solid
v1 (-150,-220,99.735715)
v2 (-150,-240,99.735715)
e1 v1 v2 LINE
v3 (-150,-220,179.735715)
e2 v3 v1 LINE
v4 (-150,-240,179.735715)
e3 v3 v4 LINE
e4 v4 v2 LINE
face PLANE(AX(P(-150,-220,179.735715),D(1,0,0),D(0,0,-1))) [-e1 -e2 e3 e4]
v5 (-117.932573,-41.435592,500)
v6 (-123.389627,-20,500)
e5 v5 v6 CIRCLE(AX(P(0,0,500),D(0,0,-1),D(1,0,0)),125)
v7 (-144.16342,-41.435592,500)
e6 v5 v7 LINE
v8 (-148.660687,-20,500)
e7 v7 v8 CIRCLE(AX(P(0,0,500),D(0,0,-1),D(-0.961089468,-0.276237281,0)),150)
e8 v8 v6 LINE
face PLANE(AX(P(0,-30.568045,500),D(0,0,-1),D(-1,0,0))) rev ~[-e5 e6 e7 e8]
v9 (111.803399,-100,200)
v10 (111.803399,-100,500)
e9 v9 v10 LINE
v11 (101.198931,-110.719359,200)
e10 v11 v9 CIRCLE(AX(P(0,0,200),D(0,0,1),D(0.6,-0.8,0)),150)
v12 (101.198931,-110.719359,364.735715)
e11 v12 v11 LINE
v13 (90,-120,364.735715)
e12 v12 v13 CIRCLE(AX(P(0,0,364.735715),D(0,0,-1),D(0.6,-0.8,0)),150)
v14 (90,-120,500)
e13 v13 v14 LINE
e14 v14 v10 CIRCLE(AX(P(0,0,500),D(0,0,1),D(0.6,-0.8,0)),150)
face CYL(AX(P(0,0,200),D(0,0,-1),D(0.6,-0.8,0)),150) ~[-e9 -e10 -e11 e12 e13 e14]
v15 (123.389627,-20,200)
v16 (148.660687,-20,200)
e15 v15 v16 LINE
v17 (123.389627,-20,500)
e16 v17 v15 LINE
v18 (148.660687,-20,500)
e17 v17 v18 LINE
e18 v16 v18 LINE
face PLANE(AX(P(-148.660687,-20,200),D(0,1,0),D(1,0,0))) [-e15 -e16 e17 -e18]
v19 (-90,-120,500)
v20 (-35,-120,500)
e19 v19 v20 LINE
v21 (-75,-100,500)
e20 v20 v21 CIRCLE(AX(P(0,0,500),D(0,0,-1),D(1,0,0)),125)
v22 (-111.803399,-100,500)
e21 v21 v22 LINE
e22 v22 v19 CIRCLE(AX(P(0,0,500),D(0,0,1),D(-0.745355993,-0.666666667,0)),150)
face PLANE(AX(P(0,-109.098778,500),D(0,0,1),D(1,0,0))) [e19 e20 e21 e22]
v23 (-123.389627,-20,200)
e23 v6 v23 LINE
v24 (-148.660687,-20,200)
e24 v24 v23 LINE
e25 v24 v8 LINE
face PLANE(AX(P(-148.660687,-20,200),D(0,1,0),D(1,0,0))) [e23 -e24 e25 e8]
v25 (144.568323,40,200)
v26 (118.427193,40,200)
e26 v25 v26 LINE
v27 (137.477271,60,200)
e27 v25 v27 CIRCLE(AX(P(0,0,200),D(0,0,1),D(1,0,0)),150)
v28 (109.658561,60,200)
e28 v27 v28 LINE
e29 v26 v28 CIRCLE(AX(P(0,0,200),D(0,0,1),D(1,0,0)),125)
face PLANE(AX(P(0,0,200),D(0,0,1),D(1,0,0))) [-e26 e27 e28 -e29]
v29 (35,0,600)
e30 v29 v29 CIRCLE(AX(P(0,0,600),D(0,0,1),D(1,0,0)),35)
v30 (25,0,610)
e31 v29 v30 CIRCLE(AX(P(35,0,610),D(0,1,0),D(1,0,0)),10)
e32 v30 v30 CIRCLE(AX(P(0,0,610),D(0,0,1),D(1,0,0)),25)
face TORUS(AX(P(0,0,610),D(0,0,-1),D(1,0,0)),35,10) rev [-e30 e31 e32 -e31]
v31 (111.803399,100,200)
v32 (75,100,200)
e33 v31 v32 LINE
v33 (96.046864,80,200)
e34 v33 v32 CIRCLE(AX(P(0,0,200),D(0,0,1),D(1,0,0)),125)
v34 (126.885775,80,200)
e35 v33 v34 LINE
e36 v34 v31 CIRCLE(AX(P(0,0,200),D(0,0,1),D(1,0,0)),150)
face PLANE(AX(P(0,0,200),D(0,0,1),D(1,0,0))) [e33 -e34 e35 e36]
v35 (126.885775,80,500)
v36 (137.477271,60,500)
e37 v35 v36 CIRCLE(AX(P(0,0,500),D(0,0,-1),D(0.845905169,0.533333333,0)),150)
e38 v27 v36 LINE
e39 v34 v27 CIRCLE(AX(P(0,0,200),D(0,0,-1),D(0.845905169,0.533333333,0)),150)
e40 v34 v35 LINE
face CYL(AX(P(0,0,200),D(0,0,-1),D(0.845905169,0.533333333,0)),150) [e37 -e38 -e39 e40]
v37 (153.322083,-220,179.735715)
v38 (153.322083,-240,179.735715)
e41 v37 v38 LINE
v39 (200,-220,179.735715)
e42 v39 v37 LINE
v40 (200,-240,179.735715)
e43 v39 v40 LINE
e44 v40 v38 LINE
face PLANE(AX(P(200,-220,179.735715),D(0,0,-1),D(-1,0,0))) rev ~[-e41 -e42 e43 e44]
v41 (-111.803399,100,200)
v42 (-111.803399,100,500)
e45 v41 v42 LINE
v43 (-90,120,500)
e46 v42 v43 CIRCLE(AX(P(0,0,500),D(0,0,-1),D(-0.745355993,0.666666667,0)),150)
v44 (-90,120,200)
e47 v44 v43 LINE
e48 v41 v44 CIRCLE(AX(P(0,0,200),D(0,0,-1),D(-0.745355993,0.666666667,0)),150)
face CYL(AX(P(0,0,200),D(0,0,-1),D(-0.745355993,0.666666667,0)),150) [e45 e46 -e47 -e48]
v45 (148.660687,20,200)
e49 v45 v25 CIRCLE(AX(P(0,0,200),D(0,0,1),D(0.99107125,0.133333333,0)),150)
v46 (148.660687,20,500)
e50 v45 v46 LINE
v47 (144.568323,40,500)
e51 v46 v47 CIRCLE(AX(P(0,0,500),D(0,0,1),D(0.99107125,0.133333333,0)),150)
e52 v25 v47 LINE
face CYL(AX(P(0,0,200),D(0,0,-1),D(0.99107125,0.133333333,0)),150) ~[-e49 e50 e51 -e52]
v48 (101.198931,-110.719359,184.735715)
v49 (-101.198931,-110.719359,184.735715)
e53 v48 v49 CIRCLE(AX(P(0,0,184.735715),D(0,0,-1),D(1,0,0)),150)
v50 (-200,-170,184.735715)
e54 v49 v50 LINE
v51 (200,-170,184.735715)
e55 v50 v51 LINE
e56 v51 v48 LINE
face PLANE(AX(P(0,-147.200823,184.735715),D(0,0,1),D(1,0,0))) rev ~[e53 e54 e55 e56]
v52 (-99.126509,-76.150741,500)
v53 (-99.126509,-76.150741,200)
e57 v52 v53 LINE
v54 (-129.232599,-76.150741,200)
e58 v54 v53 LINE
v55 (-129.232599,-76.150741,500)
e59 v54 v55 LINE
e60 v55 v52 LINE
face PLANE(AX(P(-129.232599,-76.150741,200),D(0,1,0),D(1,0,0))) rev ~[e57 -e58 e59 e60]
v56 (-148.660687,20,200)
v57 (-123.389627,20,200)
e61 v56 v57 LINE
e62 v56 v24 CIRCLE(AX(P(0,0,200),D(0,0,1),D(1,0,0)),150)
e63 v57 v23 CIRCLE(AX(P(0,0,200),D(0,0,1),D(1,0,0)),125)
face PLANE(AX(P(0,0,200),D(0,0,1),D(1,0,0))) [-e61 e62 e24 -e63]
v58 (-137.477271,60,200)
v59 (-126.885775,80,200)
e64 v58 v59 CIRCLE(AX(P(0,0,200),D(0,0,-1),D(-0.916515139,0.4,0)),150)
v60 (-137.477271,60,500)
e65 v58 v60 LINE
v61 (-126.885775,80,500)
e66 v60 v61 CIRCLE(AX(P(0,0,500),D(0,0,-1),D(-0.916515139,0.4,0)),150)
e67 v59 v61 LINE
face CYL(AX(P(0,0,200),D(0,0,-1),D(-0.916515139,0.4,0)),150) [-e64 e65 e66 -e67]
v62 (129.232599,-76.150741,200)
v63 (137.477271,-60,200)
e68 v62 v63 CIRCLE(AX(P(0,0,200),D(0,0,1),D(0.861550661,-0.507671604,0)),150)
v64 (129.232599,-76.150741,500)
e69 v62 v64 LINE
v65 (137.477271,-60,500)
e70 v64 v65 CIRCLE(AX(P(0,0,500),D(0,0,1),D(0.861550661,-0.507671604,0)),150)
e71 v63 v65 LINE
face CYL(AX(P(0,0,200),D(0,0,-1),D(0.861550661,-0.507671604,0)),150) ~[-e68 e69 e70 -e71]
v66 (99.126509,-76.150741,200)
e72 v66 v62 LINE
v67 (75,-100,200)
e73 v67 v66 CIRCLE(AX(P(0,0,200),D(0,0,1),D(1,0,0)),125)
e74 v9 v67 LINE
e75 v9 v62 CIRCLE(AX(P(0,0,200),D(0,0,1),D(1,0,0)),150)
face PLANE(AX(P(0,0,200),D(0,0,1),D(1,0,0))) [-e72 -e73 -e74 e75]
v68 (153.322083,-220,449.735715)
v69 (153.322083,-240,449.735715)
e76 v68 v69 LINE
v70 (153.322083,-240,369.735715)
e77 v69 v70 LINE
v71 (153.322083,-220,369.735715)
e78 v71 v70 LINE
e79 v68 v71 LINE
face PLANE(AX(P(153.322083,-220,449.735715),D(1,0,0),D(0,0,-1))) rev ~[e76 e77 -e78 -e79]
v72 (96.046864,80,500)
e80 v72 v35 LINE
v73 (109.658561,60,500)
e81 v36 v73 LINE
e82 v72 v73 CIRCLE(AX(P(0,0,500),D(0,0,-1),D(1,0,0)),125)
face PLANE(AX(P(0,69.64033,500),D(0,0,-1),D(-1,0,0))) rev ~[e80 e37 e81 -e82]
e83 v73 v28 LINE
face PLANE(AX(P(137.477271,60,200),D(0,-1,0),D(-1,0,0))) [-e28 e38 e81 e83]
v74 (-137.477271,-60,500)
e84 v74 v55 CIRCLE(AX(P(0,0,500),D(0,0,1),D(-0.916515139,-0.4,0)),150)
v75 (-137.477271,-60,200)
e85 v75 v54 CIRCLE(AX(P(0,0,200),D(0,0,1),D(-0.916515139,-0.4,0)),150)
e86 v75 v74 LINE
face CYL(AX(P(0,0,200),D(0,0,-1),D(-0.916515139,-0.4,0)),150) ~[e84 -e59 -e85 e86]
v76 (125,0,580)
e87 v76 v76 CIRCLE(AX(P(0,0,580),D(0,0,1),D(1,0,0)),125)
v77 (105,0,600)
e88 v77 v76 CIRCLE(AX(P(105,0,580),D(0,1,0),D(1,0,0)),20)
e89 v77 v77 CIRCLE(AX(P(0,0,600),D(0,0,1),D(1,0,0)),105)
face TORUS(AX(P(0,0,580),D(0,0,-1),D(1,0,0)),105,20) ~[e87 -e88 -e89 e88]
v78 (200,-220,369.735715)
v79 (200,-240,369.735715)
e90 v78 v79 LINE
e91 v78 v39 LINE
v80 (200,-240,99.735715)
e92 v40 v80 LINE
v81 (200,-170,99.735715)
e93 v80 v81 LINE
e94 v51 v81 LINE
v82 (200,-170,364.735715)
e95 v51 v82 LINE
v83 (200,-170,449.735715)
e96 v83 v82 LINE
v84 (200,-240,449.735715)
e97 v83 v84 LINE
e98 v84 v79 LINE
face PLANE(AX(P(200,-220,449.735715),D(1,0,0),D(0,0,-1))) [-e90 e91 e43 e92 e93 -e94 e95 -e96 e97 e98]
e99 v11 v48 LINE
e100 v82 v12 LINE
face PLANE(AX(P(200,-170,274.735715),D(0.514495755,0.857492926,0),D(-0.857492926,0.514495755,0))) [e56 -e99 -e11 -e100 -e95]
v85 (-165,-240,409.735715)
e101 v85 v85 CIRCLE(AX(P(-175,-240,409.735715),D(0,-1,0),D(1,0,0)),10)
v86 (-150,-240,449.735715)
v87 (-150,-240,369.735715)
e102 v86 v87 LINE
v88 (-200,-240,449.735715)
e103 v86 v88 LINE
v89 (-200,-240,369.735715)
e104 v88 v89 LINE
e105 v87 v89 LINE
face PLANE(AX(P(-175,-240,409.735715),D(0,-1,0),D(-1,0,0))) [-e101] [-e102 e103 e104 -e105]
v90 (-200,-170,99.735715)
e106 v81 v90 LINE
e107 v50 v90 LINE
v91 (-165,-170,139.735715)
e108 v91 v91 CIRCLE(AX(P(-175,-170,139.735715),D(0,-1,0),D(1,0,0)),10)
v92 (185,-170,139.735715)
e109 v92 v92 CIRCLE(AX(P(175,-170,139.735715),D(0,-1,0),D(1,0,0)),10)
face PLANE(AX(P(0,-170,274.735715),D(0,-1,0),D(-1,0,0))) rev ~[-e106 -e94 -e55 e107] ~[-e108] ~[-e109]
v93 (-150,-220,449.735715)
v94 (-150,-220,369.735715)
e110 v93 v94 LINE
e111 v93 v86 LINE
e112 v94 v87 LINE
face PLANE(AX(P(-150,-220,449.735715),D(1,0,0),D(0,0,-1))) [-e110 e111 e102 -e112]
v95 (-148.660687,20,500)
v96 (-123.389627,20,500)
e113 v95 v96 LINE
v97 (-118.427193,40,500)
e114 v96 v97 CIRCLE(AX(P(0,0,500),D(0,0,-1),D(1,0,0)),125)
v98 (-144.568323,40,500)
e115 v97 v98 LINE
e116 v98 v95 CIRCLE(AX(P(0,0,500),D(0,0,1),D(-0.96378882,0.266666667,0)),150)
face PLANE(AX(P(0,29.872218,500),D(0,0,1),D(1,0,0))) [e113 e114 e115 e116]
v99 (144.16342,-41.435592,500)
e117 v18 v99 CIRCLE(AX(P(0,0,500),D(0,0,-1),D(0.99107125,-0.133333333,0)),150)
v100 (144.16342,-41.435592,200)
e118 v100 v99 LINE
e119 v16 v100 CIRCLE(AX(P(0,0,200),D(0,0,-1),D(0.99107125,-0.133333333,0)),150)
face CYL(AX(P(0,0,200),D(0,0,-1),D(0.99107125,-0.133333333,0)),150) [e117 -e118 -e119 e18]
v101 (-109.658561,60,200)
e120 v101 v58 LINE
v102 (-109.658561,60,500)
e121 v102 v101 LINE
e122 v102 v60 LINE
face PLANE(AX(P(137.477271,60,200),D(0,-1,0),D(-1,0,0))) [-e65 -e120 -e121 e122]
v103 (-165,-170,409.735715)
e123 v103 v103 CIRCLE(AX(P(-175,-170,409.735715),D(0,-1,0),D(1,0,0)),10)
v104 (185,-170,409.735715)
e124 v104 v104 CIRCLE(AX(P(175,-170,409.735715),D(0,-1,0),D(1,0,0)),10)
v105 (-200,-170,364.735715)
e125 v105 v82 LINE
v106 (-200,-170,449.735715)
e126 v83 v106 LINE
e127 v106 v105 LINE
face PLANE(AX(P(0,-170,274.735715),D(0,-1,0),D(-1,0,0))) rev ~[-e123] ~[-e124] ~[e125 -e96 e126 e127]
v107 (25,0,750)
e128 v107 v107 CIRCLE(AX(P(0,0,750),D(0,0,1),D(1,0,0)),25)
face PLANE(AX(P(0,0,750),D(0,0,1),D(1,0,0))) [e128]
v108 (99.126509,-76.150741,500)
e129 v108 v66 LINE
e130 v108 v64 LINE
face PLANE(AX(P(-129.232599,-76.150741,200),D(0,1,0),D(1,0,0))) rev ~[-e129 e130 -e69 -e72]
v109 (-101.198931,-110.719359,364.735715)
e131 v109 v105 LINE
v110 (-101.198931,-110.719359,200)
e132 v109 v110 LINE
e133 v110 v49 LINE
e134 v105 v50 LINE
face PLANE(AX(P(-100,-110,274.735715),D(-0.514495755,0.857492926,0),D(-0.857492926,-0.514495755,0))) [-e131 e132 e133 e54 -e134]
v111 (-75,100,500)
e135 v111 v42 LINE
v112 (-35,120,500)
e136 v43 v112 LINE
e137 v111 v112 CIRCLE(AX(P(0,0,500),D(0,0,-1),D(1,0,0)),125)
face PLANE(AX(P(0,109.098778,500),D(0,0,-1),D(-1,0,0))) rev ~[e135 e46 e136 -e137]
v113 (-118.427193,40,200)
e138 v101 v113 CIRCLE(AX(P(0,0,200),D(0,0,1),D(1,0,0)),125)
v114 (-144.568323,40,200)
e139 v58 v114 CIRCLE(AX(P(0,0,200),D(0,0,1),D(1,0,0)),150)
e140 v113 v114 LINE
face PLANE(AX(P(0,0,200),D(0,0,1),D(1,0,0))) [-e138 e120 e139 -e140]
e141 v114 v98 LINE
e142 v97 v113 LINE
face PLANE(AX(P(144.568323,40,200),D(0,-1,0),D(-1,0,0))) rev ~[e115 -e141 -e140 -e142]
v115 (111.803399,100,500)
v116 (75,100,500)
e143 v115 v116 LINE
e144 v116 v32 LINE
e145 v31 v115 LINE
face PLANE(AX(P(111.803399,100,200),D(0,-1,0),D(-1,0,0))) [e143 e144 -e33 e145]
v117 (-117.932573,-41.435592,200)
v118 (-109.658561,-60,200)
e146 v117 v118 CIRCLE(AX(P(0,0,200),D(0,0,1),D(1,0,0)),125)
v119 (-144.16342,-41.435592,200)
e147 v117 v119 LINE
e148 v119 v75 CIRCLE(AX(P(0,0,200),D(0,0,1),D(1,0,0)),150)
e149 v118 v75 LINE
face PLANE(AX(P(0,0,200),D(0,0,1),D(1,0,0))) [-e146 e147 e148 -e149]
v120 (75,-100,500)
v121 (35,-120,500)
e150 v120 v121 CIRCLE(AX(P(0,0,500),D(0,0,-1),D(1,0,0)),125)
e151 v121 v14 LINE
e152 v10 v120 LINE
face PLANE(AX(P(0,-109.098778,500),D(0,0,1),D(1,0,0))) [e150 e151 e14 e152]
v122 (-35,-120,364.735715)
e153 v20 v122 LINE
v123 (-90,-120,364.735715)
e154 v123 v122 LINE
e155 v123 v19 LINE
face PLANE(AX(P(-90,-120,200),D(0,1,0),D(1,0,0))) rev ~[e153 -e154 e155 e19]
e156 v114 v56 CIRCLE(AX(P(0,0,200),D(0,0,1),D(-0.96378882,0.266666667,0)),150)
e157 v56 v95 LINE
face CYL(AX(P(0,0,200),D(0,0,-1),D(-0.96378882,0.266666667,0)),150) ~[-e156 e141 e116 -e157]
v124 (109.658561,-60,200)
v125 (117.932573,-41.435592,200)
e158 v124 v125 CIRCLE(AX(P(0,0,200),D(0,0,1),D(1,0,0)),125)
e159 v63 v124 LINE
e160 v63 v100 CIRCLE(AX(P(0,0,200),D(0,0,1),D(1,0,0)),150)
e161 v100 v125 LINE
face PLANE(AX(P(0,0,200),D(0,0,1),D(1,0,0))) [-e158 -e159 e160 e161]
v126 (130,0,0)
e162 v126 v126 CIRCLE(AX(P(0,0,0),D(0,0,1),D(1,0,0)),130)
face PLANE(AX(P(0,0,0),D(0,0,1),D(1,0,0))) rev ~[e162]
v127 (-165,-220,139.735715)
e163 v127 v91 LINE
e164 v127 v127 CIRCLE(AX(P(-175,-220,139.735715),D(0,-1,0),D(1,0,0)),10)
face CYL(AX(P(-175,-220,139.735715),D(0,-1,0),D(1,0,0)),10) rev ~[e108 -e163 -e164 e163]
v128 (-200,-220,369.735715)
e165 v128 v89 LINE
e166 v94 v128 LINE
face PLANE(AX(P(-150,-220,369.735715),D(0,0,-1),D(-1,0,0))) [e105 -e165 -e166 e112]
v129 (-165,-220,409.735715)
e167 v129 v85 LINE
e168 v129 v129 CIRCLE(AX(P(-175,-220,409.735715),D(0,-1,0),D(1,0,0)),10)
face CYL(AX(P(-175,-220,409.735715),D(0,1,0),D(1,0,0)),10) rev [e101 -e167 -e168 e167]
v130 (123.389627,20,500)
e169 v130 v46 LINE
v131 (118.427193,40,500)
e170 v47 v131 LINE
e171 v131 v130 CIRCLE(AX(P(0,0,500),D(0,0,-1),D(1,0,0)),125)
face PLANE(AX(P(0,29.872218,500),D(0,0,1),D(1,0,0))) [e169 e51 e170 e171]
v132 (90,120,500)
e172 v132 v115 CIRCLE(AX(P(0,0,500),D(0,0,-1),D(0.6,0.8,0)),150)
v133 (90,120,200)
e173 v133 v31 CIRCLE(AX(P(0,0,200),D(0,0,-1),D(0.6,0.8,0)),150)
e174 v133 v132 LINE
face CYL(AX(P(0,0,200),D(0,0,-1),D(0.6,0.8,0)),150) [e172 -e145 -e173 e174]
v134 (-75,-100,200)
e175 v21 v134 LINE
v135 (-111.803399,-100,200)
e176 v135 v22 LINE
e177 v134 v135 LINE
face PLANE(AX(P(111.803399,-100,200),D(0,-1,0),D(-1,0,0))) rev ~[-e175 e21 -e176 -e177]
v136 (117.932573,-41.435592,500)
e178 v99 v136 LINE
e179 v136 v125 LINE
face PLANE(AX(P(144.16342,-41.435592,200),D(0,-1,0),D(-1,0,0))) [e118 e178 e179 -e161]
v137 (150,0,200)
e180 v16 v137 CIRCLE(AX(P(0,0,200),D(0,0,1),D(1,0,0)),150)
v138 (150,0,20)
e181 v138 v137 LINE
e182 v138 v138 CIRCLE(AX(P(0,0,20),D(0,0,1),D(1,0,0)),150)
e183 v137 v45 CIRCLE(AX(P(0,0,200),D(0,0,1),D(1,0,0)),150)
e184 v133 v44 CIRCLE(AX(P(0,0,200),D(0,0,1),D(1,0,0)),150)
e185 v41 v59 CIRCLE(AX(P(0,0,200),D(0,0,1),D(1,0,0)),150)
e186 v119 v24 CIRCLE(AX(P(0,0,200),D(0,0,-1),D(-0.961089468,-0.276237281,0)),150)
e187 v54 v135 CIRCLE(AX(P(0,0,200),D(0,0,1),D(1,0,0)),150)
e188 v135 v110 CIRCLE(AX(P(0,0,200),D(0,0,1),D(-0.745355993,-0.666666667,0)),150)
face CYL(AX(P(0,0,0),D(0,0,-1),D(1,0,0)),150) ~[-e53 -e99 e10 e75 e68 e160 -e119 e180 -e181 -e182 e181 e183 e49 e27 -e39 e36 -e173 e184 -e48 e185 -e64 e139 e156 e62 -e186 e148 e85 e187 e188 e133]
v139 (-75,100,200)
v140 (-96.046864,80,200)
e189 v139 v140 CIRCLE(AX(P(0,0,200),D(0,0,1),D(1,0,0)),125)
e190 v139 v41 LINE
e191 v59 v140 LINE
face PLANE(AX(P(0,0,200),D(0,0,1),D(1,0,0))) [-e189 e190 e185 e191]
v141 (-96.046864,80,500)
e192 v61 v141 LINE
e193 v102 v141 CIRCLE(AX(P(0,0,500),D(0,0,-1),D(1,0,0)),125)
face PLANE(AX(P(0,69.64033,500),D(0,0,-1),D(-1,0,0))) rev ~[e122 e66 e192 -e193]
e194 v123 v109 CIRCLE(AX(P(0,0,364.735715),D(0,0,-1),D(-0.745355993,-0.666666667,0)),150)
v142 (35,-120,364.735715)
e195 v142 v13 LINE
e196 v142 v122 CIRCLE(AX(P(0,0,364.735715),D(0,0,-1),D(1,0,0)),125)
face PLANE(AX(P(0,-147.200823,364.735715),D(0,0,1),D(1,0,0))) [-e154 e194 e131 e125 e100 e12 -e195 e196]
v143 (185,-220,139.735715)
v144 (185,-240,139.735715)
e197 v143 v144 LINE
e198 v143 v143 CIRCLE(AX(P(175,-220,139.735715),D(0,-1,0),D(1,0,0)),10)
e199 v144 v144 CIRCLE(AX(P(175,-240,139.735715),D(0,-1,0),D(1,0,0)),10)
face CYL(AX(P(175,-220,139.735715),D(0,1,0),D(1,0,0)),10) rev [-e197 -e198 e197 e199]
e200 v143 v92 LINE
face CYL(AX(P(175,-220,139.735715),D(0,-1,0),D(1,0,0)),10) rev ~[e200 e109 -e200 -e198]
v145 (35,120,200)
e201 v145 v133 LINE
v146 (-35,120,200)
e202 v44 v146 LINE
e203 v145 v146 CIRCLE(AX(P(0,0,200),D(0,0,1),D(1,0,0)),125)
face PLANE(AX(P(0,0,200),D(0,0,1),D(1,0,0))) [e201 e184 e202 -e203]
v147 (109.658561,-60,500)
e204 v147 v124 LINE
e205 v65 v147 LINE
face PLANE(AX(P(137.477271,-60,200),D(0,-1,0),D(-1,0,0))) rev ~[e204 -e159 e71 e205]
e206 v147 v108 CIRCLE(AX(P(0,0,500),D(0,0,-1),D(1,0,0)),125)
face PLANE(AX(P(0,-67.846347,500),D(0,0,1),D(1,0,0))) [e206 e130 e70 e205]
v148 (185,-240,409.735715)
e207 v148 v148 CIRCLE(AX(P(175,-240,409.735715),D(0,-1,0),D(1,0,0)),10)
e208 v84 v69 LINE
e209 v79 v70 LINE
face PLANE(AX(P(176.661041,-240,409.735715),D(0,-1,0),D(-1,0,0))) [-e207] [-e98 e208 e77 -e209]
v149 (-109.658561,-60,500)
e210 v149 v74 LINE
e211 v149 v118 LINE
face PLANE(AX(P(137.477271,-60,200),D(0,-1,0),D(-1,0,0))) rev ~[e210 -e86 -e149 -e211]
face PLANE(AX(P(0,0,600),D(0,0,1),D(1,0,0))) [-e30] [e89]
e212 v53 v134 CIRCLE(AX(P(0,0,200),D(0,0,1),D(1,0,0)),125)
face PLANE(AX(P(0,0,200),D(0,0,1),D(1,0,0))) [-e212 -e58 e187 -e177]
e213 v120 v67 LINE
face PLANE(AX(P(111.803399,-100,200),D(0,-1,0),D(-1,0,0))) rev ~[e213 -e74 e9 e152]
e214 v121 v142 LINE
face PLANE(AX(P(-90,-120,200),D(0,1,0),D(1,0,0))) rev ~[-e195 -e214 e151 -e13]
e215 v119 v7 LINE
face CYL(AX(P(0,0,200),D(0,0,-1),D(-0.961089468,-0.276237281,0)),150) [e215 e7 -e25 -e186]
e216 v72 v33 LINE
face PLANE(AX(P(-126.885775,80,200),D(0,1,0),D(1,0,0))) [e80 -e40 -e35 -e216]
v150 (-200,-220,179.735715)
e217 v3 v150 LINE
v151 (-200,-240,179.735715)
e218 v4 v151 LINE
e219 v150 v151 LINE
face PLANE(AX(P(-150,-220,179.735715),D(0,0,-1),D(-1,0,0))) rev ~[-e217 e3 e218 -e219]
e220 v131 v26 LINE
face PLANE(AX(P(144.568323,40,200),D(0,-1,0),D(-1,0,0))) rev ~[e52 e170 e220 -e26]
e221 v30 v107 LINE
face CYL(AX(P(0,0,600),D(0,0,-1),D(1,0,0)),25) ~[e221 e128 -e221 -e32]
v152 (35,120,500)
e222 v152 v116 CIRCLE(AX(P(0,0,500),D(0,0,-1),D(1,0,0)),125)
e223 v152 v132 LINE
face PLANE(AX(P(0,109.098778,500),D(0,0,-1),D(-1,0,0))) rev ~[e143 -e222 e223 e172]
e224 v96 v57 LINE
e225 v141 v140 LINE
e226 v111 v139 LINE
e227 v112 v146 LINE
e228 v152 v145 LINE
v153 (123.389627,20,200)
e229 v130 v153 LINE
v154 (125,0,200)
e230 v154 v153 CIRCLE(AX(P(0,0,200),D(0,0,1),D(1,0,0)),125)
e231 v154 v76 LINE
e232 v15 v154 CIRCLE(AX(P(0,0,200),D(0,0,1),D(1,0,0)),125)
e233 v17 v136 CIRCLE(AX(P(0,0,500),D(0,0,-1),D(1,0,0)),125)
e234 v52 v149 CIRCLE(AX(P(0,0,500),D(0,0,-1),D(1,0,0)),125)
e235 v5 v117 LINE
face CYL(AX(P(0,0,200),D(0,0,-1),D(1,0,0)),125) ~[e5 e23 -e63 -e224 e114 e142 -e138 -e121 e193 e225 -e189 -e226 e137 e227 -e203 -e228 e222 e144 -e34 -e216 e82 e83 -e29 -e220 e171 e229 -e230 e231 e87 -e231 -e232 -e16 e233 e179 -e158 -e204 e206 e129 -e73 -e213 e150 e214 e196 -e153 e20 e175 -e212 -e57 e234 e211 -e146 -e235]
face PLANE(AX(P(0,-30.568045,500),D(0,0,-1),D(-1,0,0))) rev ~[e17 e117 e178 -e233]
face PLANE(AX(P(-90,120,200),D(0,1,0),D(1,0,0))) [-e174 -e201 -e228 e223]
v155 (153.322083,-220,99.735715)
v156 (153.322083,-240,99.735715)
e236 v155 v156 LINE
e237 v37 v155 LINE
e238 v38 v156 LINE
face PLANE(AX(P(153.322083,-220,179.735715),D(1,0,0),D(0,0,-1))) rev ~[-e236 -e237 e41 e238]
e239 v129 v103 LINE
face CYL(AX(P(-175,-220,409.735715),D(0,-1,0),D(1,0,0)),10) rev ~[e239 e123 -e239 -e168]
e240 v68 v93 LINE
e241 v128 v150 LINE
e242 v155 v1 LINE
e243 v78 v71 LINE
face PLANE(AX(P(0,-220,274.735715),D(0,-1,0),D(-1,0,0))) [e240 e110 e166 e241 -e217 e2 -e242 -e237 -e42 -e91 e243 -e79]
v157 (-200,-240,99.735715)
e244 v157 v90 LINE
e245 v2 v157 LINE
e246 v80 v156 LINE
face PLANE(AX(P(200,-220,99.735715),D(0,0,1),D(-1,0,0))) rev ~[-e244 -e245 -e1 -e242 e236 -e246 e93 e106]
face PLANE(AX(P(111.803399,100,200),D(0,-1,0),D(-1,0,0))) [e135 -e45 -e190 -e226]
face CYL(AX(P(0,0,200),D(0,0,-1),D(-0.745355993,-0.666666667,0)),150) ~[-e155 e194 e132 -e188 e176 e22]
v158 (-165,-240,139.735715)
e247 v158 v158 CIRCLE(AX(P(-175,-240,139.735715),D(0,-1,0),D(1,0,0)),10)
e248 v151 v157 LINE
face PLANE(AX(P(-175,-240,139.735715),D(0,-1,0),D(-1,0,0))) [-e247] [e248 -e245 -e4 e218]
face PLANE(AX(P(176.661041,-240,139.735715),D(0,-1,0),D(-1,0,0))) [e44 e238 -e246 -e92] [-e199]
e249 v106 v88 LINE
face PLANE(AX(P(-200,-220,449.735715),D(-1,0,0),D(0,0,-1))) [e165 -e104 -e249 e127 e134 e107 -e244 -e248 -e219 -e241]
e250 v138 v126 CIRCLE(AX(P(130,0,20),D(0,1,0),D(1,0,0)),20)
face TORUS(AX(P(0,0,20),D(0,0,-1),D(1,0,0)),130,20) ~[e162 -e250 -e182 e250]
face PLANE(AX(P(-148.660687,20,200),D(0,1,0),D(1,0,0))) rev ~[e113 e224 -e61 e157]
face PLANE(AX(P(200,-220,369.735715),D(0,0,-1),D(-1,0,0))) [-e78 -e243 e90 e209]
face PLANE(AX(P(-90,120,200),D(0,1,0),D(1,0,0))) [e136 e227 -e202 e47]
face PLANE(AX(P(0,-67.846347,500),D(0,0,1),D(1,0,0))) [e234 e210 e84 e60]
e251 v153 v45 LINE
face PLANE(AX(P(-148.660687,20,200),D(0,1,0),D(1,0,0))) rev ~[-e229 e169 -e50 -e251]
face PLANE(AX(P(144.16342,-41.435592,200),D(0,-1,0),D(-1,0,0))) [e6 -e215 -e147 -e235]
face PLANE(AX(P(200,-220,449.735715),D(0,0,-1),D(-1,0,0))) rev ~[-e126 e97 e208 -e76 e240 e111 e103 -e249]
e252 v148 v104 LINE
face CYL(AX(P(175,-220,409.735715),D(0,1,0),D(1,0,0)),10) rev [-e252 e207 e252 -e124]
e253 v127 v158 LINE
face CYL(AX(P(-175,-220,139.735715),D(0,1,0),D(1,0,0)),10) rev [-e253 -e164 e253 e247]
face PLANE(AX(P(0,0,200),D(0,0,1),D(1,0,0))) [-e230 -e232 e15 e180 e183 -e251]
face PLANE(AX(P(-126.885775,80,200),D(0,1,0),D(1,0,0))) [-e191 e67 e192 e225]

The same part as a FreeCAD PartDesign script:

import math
import FreeCAD as App
import Part
import Sketcher
from FreeCAD import Vector


def edges_at(feature, points):
    """Names of the edges that pass closest to the given points."""
    edges = feature.Shape.Edges
    near = lambda p: min(range(len(edges)), key=lambda i: edges[i].distToShape(Part.Vertex(*p))[0])
    return sorted({f"Edge{near(p) + 1}" for p in points})

doc = App.newDocument("Part")
body = doc.addObject("PartDesign::Body", "Body")

# Sketch on XY plane
sketch1 = body.newObject("Sketcher::SketchObject", "Sketch")
sketch1.AttachmentSupport = (doc.getObject("XY_Plane"), [""])
sketch1.MapMode = "FlatFace"
sketch1.addGeometry(Part.Circle(Vector(0, 0, 0), Vector(0, 0, 1), 150), False)
sketch1.addConstraint(Sketcher.Constraint("Coincident", 0, 3, -1, 1))
sketch1.addConstraint(Sketcher.Constraint("Diameter", 0, 300.0))
pad1 = body.newObject("PartDesign::Pad", "Pad")
pad1.Profile = sketch1
pad1.Length = 200

# Sketch on XY plane
sketch2 = body.newObject("Sketcher::SketchObject", "Sketch001")
sketch2.AttachmentSupport = (doc.getObject("XY_Plane"), [""])
sketch2.MapMode = "FlatFace"
sketch2.AttachmentOffset = App.Placement(Vector(0, 0, 200), App.Rotation())
sketch2.addGeometry(Part.LineSegment(Vector(90, 120, 0), Vector(-90, 120, 0)), False)
sketch2.addGeometry(Part.ArcOfCircle(Part.Circle(Vector(0, 0, 0), Vector(0, 0, 1), 150), math.radians(126.869898), math.radians(138.189685)), False)
sketch2.addGeometry(Part.LineSegment(Vector(-111.803399, 100, 0), Vector(111.803399, 100, 0)), False)
sketch2.addGeometry(Part.ArcOfCircle(Part.Circle(Vector(0, 0, 0), Vector(0, 0, 1), 150), math.radians(41.810315), math.radians(53.130102)), False)
sketch2.addGeometry(Part.LineSegment(Vector(126.885775, 80, 0), Vector(-126.885775, 80, 0)), False)
sketch2.addGeometry(Part.ArcOfCircle(Part.Circle(Vector(0, 0, 0), Vector(0, 0, 1), 150), math.radians(147.769047), math.radians(156.421822)), False)
sketch2.addGeometry(Part.LineSegment(Vector(-137.477271, 60, 0), Vector(137.477271, 60, 0)), False)
sketch2.addGeometry(Part.ArcOfCircle(Part.Circle(Vector(0, 0, 0), Vector(0, 0, 1), 150), math.radians(23.578178), math.radians(32.230953)), False)
sketch2.addGeometry(Part.LineSegment(Vector(-144.16342, -41.435592, 0), Vector(144.16342, -41.435592, 0)), False)
sketch2.addGeometry(Part.ArcOfCircle(Part.Circle(Vector(0, 0, 0), Vector(0, 0, 1), 150), math.radians(-16.035762), math.radians(-7.662256)), False)
sketch2.addGeometry(Part.LineSegment(Vector(148.660687, -20, 0), Vector(-148.660687, -20, 0)), False)
sketch2.addGeometry(Part.ArcOfCircle(Part.Circle(Vector(0, 0, 0), Vector(0, 0, 1), 150), math.radians(-172.337744), math.radians(-163.964238)), False)
sketch2.addGeometry(Part.LineSegment(Vector(111.803399, -100, 0), Vector(-111.803399, -100, 0)), False)
sketch2.addGeometry(Part.ArcOfCircle(Part.Circle(Vector(0, 0, 0), Vector(0, 0, 1), 150), math.radians(-138.189685), math.radians(-126.869898)), False)
sketch2.addGeometry(Part.LineSegment(Vector(-90, -120, 0), Vector(90, -120, 0)), False)
sketch2.addGeometry(Part.ArcOfCircle(Part.Circle(Vector(0, 0, 0), Vector(0, 0, 1), 150), math.radians(-53.130102), math.radians(-41.810315)), False)
sketch2.addGeometry(Part.LineSegment(Vector(144.568323, 40, 0), Vector(-144.568323, 40, 0)), False)
sketch2.addGeometry(Part.ArcOfCircle(Part.Circle(Vector(0, 0, 0), Vector(0, 0, 1), 150), math.radians(164.53399), math.radians(172.337744)), False)
sketch2.addGeometry(Part.LineSegment(Vector(-148.660687, 20, 0), Vector(148.660687, 20, 0)), False)
sketch2.addGeometry(Part.ArcOfCircle(Part.Circle(Vector(0, 0, 0), Vector(0, 0, 1), 150), math.radians(7.662256), math.radians(15.46601)), False)
sketch2.addGeometry(Part.LineSegment(Vector(137.477271, -60, 0), Vector(-137.477271, -60, 0)), False)
sketch2.addGeometry(Part.ArcOfCircle(Part.Circle(Vector(0, 0, 0), Vector(0, 0, 1), 150), math.radians(-156.421822), math.radians(-149.491139)), False)
sketch2.addGeometry(Part.LineSegment(Vector(-129.232599, -76.150741, 0), Vector(129.232599, -76.150741, 0)), False)
sketch2.addGeometry(Part.ArcOfCircle(Part.Circle(Vector(0, 0, 0), Vector(0, 0, 1), 150), math.radians(-30.508861), math.radians(-23.578178)), False)
sketch2.addConstraint(Sketcher.Constraint("Coincident", 0, 2, 1, 1))
sketch2.addConstraint(Sketcher.Constraint("Coincident", 1, 2, 2, 1))
sketch2.addConstraint(Sketcher.Constraint("Coincident", 2, 2, 3, 1))
sketch2.addConstraint(Sketcher.Constraint("Coincident", 3, 2, 0, 1))
sketch2.addConstraint(Sketcher.Constraint("Coincident", 4, 2, 5, 1))
sketch2.addConstraint(Sketcher.Constraint("Coincident", 5, 2, 6, 1))
sketch2.addConstraint(Sketcher.Constraint("Coincident", 6, 2, 7, 1))
sketch2.addConstraint(Sketcher.Constraint("Coincident", 7, 2, 4, 1))
sketch2.addConstraint(Sketcher.Constraint("Coincident", 8, 2, 9, 1))
sketch2.addConstraint(Sketcher.Constraint("Coincident", 9, 2, 10, 1))
sketch2.addConstraint(Sketcher.Constraint("Coincident", 10, 2, 11, 1))
sketch2.addConstraint(Sketcher.Constraint("Coincident", 11, 2, 8, 1))
sketch2.addConstraint(Sketcher.Constraint("Coincident", 12, 2, 13, 1))
sketch2.addConstraint(Sketcher.Constraint("Coincident", 13, 2, 14, 1))
sketch2.addConstraint(Sketcher.Constraint("Coincident", 14, 2, 15, 1))
sketch2.addConstraint(Sketcher.Constraint("Coincident", 15, 2, 12, 1))
sketch2.addConstraint(Sketcher.Constraint("Coincident", 16, 2, 17, 1))
sketch2.addConstraint(Sketcher.Constraint("Coincident", 17, 2, 18, 1))
sketch2.addConstraint(Sketcher.Constraint("Coincident", 18, 2, 19, 1))
sketch2.addConstraint(Sketcher.Constraint("Coincident", 19, 2, 16, 1))
sketch2.addConstraint(Sketcher.Constraint("Coincident", 20, 2, 21, 1))
sketch2.addConstraint(Sketcher.Constraint("Coincident", 21, 2, 22, 1))
sketch2.addConstraint(Sketcher.Constraint("Coincident", 22, 2, 23, 1))
sketch2.addConstraint(Sketcher.Constraint("Coincident", 23, 2, 20, 1))
sketch2.addConstraint(Sketcher.Constraint("Horizontal", 0))
sketch2.addConstraint(Sketcher.Constraint("Horizontal", 2))
sketch2.addConstraint(Sketcher.Constraint("Horizontal", 4))
sketch2.addConstraint(Sketcher.Constraint("Horizontal", 6))
sketch2.addConstraint(Sketcher.Constraint("Horizontal", 8))
sketch2.addConstraint(Sketcher.Constraint("Horizontal", 10))
sketch2.addConstraint(Sketcher.Constraint("Horizontal", 12))
sketch2.addConstraint(Sketcher.Constraint("Horizontal", 14))
sketch2.addConstraint(Sketcher.Constraint("Horizontal", 16))
sketch2.addConstraint(Sketcher.Constraint("Horizontal", 18))
sketch2.addConstraint(Sketcher.Constraint("Horizontal", 20))
sketch2.addConstraint(Sketcher.Constraint("Horizontal", 22))
sketch2.addConstraint(Sketcher.Constraint("Coincident", 1, 3, -1, 1))
sketch2.addConstraint(Sketcher.Constraint("Coincident", 3, 3, -1, 1))
sketch2.addConstraint(Sketcher.Constraint("Coincident", 5, 3, -1, 1))
sketch2.addConstraint(Sketcher.Constraint("Coincident", 7, 3, -1, 1))
sketch2.addConstraint(Sketcher.Constraint("Coincident", 9, 3, -1, 1))
sketch2.addConstraint(Sketcher.Constraint("Coincident", 11, 3, -1, 1))
sketch2.addConstraint(Sketcher.Constraint("Coincident", 13, 3, -1, 1))
sketch2.addConstraint(Sketcher.Constraint("Coincident", 15, 3, -1, 1))
sketch2.addConstraint(Sketcher.Constraint("Coincident", 17, 3, -1, 1))
sketch2.addConstraint(Sketcher.Constraint("Coincident", 19, 3, -1, 1))
sketch2.addConstraint(Sketcher.Constraint("Coincident", 21, 3, -1, 1))
sketch2.addConstraint(Sketcher.Constraint("Coincident", 23, 3, -1, 1))
sketch2.addConstraint(Sketcher.Constraint("Equal", 1, 3))
sketch2.addConstraint(Sketcher.Constraint("Equal", 3, 5))
sketch2.addConstraint(Sketcher.Constraint("Equal", 5, 7))
sketch2.addConstraint(Sketcher.Constraint("Equal", 7, 9))
sketch2.addConstraint(Sketcher.Constraint("Equal", 9, 11))
sketch2.addConstraint(Sketcher.Constraint("Equal", 11, 13))
sketch2.addConstraint(Sketcher.Constraint("Equal", 13, 15))
sketch2.addConstraint(Sketcher.Constraint("Equal", 15, 17))
sketch2.addConstraint(Sketcher.Constraint("Equal", 17, 19))
sketch2.addConstraint(Sketcher.Constraint("Equal", 19, 21))
sketch2.addConstraint(Sketcher.Constraint("Equal", 21, 23))
sketch2.addConstraint(Sketcher.Constraint("Vertical", 1, 2, 12, 2))
sketch2.addConstraint(Sketcher.Constraint("Vertical", 0, 2, 13, 2))
sketch2.addConstraint(Sketcher.Constraint("Vertical", 10, 2, 17, 2))
sketch2.addConstraint(Sketcher.Constraint("Vertical", 5, 2, 20, 2))
sketch2.addConstraint(Sketcher.Constraint("Radius", 1, 150.0))
sketch2.addConstraint(Sketcher.Constraint("DistanceX", 0, 2, 0, 1, 180.0))
sketch2.addConstraint(Sketcher.Constraint("DistanceY", -1, 1, 1, 2, 100.0))
sketch2.addConstraint(Sketcher.Constraint("DistanceY", -1, 1, 4, 2, 80.0))
sketch2.addConstraint(Sketcher.Constraint("DistanceY", -1, 1, 5, 2, 60.0))
sketch2.addConstraint(Sketcher.Constraint("DistanceY", 9, 2, -1, 1, 20.0))
sketch2.addConstraint(Sketcher.Constraint("DistanceY", -1, 1, 16, 2, 40.0))
sketch2.addConstraint(Sketcher.Constraint("DistanceX", 22, 1, 22, 2, 258.465198))
sketch2.addConstraint(Sketcher.Constraint("DistanceX", 8, 1, 8, 2, 288.32684))
pad2 = body.newObject("PartDesign::Pad", "Pad001")
pad2.Profile = sketch2
pad2.Length = 300
body2 = doc.addObject("PartDesign::Body", "Body001")

# Sketch on XY plane
sketch3 = body2.newObject("Sketcher::SketchObject", "Sketch002")
sketch3.AttachmentSupport = (doc.getObject("XY_Plane001"), [""])
sketch3.MapMode = "FlatFace"
sketch3.AttachmentOffset = App.Placement(Vector(0, 0, 200), App.Rotation())
sketch3.addGeometry(Part.Circle(Vector(0, 0, 0), Vector(0, 0, 1), 125), False)
sketch3.addConstraint(Sketcher.Constraint("Coincident", 0, 3, -1, 1))
sketch3.addConstraint(Sketcher.Constraint("Diameter", 0, 250.0))
pad3 = body2.newObject("PartDesign::Pad", "Pad002")
pad3.Profile = sketch3
pad3.Length = 400
body3 = doc.addObject("PartDesign::Body", "Body002")

# Sketch on XZ plane
sketch4 = body3.newObject("Sketcher::SketchObject", "Sketch003")
sketch4.AttachmentSupport = (doc.getObject("XZ_Plane002"), [""])
sketch4.MapMode = "FlatFace"
sketch4.AttachmentOffset = App.Placement(Vector(0, 0, 220), App.Rotation())
sketch4.addGeometry(Part.LineSegment(Vector(200, 99.735715, 0), Vector(200, 449.735715, 0)), False)
sketch4.addGeometry(Part.LineSegment(Vector(200, 449.735715, 0), Vector(-200, 449.735715, 0)), False)
sketch4.addGeometry(Part.LineSegment(Vector(-200, 449.735715, 0), Vector(-200, 99.735715, 0)), False)
sketch4.addGeometry(Part.LineSegment(Vector(-200, 99.735715, 0), Vector(200, 99.735715, 0)), False)
sketch4.addGeometry(Part.Circle(Vector(175, 409.735715, 0), Vector(0, 0, 1), 10), False)
sketch4.addGeometry(Part.Circle(Vector(-175, 409.735715, 0), Vector(0, 0, 1), 10), False)
sketch4.addGeometry(Part.Circle(Vector(175, 139.735715, 0), Vector(0, 0, 1), 10), False)
sketch4.addGeometry(Part.Circle(Vector(-175, 139.735715, 0), Vector(0, 0, 1), 10), False)
sketch4.addConstraint(Sketcher.Constraint("Coincident", 0, 2, 1, 1))
sketch4.addConstraint(Sketcher.Constraint("Coincident", 1, 2, 2, 1))
sketch4.addConstraint(Sketcher.Constraint("Coincident", 2, 2, 3, 1))
sketch4.addConstraint(Sketcher.Constraint("Coincident", 3, 2, 0, 1))
sketch4.addConstraint(Sketcher.Constraint("Vertical", 0))
sketch4.addConstraint(Sketcher.Constraint("Horizontal", 1))
sketch4.addConstraint(Sketcher.Constraint("Vertical", 2))
sketch4.addConstraint(Sketcher.Constraint("Horizontal", 3))
sketch4.addConstraint(Sketcher.Constraint("Equal", 4, 5))
sketch4.addConstraint(Sketcher.Constraint("Equal", 5, 6))
sketch4.addConstraint(Sketcher.Constraint("Equal", 6, 7))
sketch4.addConstraint(Sketcher.Constraint("Symmetric", 4, 3, 5, 3, -2))
sketch4.addConstraint(Sketcher.Constraint("Symmetric", 6, 3, 7, 3, -2))
sketch4.addConstraint(Sketcher.Constraint("Vertical", 4, 3, 6, 3))
sketch4.addConstraint(Sketcher.Constraint("Diameter", 4, 20.0))
sketch4.addConstraint(Sketcher.Constraint("DistanceX", 1, 2, 1, 1, 400.0))
sketch4.addConstraint(Sketcher.Constraint("DistanceY", 0, 1, 0, 2, 350.0))
sketch4.addConstraint(Sketcher.Constraint("DistanceX", -1, 1, 4, 3, 175.0))
sketch4.addConstraint(Sketcher.Constraint("DistanceX", -1, 1, 0, 2, 200.0))
sketch4.addConstraint(Sketcher.Constraint("DistanceY", 6, 3, 4, 3, 270.0))
sketch4.addConstraint(Sketcher.Constraint("DistanceY", 4, 3, 0, 2, 40.0))
sketch4.addConstraint(Sketcher.Constraint("DistanceY", -1, 1, 4, 3, 409.735715))
pad4 = body3.newObject("PartDesign::Pad", "Pad003")
pad4.Profile = sketch4
pad4.Length = 50
pad4.Reversed = True

# Sketch on XZ plane
sketch5 = body3.newObject("Sketcher::SketchObject", "Sketch004")
sketch5.AttachmentSupport = (doc.getObject("XZ_Plane002"), [""])
sketch5.MapMode = "FlatFace"
sketch5.AttachmentOffset = App.Placement(Vector(0, 0, 220), App.Rotation())
sketch5.addGeometry(Part.LineSegment(Vector(200, 369.735715, 0), Vector(200, 449.735715, 0)), False)
sketch5.addGeometry(Part.LineSegment(Vector(200, 449.735715, 0), Vector(153.322083, 449.735715, 0)), False)
sketch5.addGeometry(Part.LineSegment(Vector(153.322083, 449.735715, 0), Vector(153.322083, 369.735715, 0)), False)
sketch5.addGeometry(Part.LineSegment(Vector(153.322083, 369.735715, 0), Vector(200, 369.735715, 0)), False)
sketch5.addGeometry(Part.Circle(Vector(175, 409.735715, 0), Vector(0, 0, 1), 10), False)
sketch5.addGeometry(Part.LineSegment(Vector(200, 99.735715, 0), Vector(200, 179.735715, 0)), False)
sketch5.addGeometry(Part.LineSegment(Vector(200, 179.735715, 0), Vector(153.322083, 179.735715, 0)), False)
sketch5.addGeometry(Part.LineSegment(Vector(153.322083, 179.735715, 0), Vector(153.322083, 99.735715, 0)), False)
sketch5.addGeometry(Part.LineSegment(Vector(153.322083, 99.735715, 0), Vector(200, 99.735715, 0)), False)
sketch5.addGeometry(Part.Circle(Vector(175, 139.735715, 0), Vector(0, 0, 1), 10), False)
sketch5.addGeometry(Part.LineSegment(Vector(-150, 369.735715, 0), Vector(-150, 449.735715, 0)), False)
sketch5.addGeometry(Part.LineSegment(Vector(-150, 449.735715, 0), Vector(-200, 449.735715, 0)), False)
sketch5.addGeometry(Part.LineSegment(Vector(-200, 449.735715, 0), Vector(-200, 369.735715, 0)), False)
sketch5.addGeometry(Part.LineSegment(Vector(-200, 369.735715, 0), Vector(-150, 369.735715, 0)), False)
sketch5.addGeometry(Part.Circle(Vector(-175, 409.735715, 0), Vector(0, 0, 1), 10), False)
sketch5.addGeometry(Part.LineSegment(Vector(-150, 99.735715, 0), Vector(-150, 179.735715, 0)), False)
sketch5.addGeometry(Part.LineSegment(Vector(-150, 179.735715, 0), Vector(-200, 179.735715, 0)), False)
sketch5.addGeometry(Part.LineSegment(Vector(-200, 179.735715, 0), Vector(-200, 99.735715, 0)), False)
sketch5.addGeometry(Part.LineSegment(Vector(-200, 99.735715, 0), Vector(-150, 99.735715, 0)), False)
sketch5.addGeometry(Part.Circle(Vector(-175, 139.735715, 0), Vector(0, 0, 1), 10), False)
sketch5.addConstraint(Sketcher.Constraint("Coincident", 0, 2, 1, 1))
sketch5.addConstraint(Sketcher.Constraint("Coincident", 1, 2, 2, 1))
sketch5.addConstraint(Sketcher.Constraint("Coincident", 2, 2, 3, 1))
sketch5.addConstraint(Sketcher.Constraint("Coincident", 3, 2, 0, 1))
sketch5.addConstraint(Sketcher.Constraint("Coincident", 5, 2, 6, 1))
sketch5.addConstraint(Sketcher.Constraint("Coincident", 6, 2, 7, 1))
sketch5.addConstraint(Sketcher.Constraint("Coincident", 7, 2, 8, 1))
sketch5.addConstraint(Sketcher.Constraint("Coincident", 8, 2, 5, 1))
sketch5.addConstraint(Sketcher.Constraint("Coincident", 10, 2, 11, 1))
sketch5.addConstraint(Sketcher.Constraint("Coincident", 11, 2, 12, 1))
sketch5.addConstraint(Sketcher.Constraint("Coincident", 12, 2, 13, 1))
sketch5.addConstraint(Sketcher.Constraint("Coincident", 13, 2, 10, 1))
sketch5.addConstraint(Sketcher.Constraint("Coincident", 15, 2, 16, 1))
sketch5.addConstraint(Sketcher.Constraint("Coincident", 16, 2, 17, 1))
sketch5.addConstraint(Sketcher.Constraint("Coincident", 17, 2, 18, 1))
sketch5.addConstraint(Sketcher.Constraint("Coincident", 18, 2, 15, 1))
sketch5.addConstraint(Sketcher.Constraint("Vertical", 0))
sketch5.addConstraint(Sketcher.Constraint("Horizontal", 1))
sketch5.addConstraint(Sketcher.Constraint("Vertical", 2))
sketch5.addConstraint(Sketcher.Constraint("Horizontal", 3))
sketch5.addConstraint(Sketcher.Constraint("Vertical", 5))
sketch5.addConstraint(Sketcher.Constraint("Horizontal", 6))
sketch5.addConstraint(Sketcher.Constraint("Vertical", 7))
sketch5.addConstraint(Sketcher.Constraint("Horizontal", 8))
sketch5.addConstraint(Sketcher.Constraint("Vertical", 10))
sketch5.addConstraint(Sketcher.Constraint("Horizontal", 11))
sketch5.addConstraint(Sketcher.Constraint("Vertical", 12))
sketch5.addConstraint(Sketcher.Constraint("Horizontal", 13))
sketch5.addConstraint(Sketcher.Constraint("Vertical", 15))
sketch5.addConstraint(Sketcher.Constraint("Horizontal", 16))
sketch5.addConstraint(Sketcher.Constraint("Vertical", 17))
sketch5.addConstraint(Sketcher.Constraint("Horizontal", 18))
sketch5.addConstraint(Sketcher.Constraint("Equal", 4, 9))
sketch5.addConstraint(Sketcher.Constraint("Equal", 9, 14))
sketch5.addConstraint(Sketcher.Constraint("Equal", 14, 19))
sketch5.addConstraint(Sketcher.Constraint("Symmetric", 4, 3, 14, 3, -2))
sketch5.addConstraint(Sketcher.Constraint("Symmetric", 9, 3, 19, 3, -2))
sketch5.addConstraint(Sketcher.Constraint("Symmetric", 0, 2, 11, 2, -2))
sketch5.addConstraint(Sketcher.Constraint("Symmetric", 5, 2, 16, 2, -2))
sketch5.addConstraint(Sketcher.Constraint("Horizontal", 3, 2, 12, 2))
sketch5.addConstraint(Sketcher.Constraint("Horizontal", 8, 2, 17, 2))
sketch5.addConstraint(Sketcher.Constraint("Vertical", 4, 3, 9, 3))
sketch5.addConstraint(Sketcher.Constraint("Vertical", 3, 2, 5, 2))
sketch5.addConstraint(Sketcher.Constraint("Vertical", 2, 2, 6, 2))
sketch5.addConstraint(Sketcher.Constraint("Vertical", 13, 2, 15, 2))
sketch5.addConstraint(Sketcher.Constraint("Equal", 2, 5))
sketch5.addConstraint(Sketcher.Constraint("Diameter", 4, 20.0))
sketch5.addConstraint(Sketcher.Constraint("DistanceX", 11, 2, 11, 1, 50.0))
sketch5.addConstraint(Sketcher.Constraint("DistanceY", 0, 1, 0, 2, 80.0))
sketch5.addConstraint(Sketcher.Constraint("DistanceX", -1, 1, 4, 3, 175.0))
sketch5.addConstraint(Sketcher.Constraint("DistanceX", -1, 1, 0, 2, 200.0))
sketch5.addConstraint(Sketcher.Constraint("DistanceY", 9, 3, 4, 3, 270.0))
sketch5.addConstraint(Sketcher.Constraint("DistanceY", 4, 3, 0, 2, 40.0))
sketch5.addConstraint(Sketcher.Constraint("DistanceY", 9, 3, 5, 2, 40.0))
sketch5.addConstraint(Sketcher.Constraint("DistanceX", 1, 2, 1, 1, 46.677917))
sketch5.addConstraint(Sketcher.Constraint("DistanceY", -1, 1, 4, 3, 409.735715))
pad5 = body3.newObject("PartDesign::Pad", "Pad004")
pad5.Profile = sketch5
pad5.Length = 20
body.AllowCompound = True
doc.recompute()

boolean = body.newObject("PartDesign::Boolean", "Boolean")
boolean.Type = "Fuse"
boolean.addObjects([body2])
doc.recompute()

boolean2 = body.newObject("PartDesign::Boolean", "Boolean001")
boolean2.Type = "Fuse"
boolean2.addObjects([body3])

# Sketch on XY plane
sketch6 = body.newObject("Sketcher::SketchObject", "Sketch005")
sketch6.AttachmentSupport = (doc.getObject("XY_Plane"), [""])
sketch6.MapMode = "FlatFace"
sketch6.AttachmentOffset = App.Placement(Vector(0, 0, 274.735715), App.Rotation())
sketch6.addGeometry(Part.LineSegment(Vector(-200, -170, 0), Vector(200, -170, 0)), False)
sketch6.addGeometry(Part.LineSegment(Vector(200, -170, 0), Vector(100, -110, 0)), False)
sketch6.addGeometry(Part.LineSegment(Vector(100, -110, 0), Vector(-100, -110, 0)), False)
sketch6.addGeometry(Part.LineSegment(Vector(-100, -110, 0), Vector(-200, -170, 0)), False)
sketch6.addConstraint(Sketcher.Constraint("Coincident", 0, 2, 1, 1))
sketch6.addConstraint(Sketcher.Constraint("Coincident", 1, 2, 2, 1))
sketch6.addConstraint(Sketcher.Constraint("Coincident", 2, 2, 3, 1))
sketch6.addConstraint(Sketcher.Constraint("Coincident", 3, 2, 0, 1))
sketch6.addConstraint(Sketcher.Constraint("Horizontal", 0))
sketch6.addConstraint(Sketcher.Constraint("Horizontal", 2))
sketch6.addConstraint(Sketcher.Constraint("Equal", 1, 3))
sketch6.addConstraint(Sketcher.Constraint("DistanceX", 0, 1, 0, 2, 400.0))
sketch6.addConstraint(Sketcher.Constraint("DistanceX", 2, 2, 2, 1, 200.0))
sketch6.addConstraint(Sketcher.Constraint("DistanceX", -1, 1, 0, 2, 200.0))
sketch6.addConstraint(Sketcher.Constraint("DistanceY", 0, 2, -1, 1, 170.0))
sketch6.addConstraint(Sketcher.Constraint("DistanceY", 1, 2, -1, 1, 110.0))
pad6 = body.newObject("PartDesign::Pad", "Pad005")
pad6.Profile = sketch6
pad6.Length = 180
pad6.Midplane = True

# Sketch on XY plane
sketch7 = body.newObject("Sketcher::SketchObject", "Sketch006")
sketch7.AttachmentSupport = (doc.getObject("XY_Plane"), [""])
sketch7.MapMode = "FlatFace"
sketch7.AttachmentOffset = App.Placement(Vector(0, 0, 600), App.Rotation())
sketch7.addGeometry(Part.Circle(Vector(0, 0, 0), Vector(0, 0, 1), 25), False)
sketch7.addConstraint(Sketcher.Constraint("Coincident", 0, 3, -1, 1))
sketch7.addConstraint(Sketcher.Constraint("Diameter", 0, 50.0))
pad7 = body.newObject("PartDesign::Pad", "Pad006")
pad7.Profile = sketch7
pad7.Length = 150
doc.recompute()

fillet = body.newObject("PartDesign::Fillet", "Fillet")
fillet.Base = (pad7, edges_at(pad7, [(-25, 0, 600)]))
fillet.Radius = 10
doc.recompute()

fillet2 = body.newObject("PartDesign::Fillet", "Fillet001")
fillet2.Base = (fillet, edges_at(fillet, [(-125, 0, 600), (-150, 0, 0)]))
fillet2.Radius = 20

doc.recompute()
